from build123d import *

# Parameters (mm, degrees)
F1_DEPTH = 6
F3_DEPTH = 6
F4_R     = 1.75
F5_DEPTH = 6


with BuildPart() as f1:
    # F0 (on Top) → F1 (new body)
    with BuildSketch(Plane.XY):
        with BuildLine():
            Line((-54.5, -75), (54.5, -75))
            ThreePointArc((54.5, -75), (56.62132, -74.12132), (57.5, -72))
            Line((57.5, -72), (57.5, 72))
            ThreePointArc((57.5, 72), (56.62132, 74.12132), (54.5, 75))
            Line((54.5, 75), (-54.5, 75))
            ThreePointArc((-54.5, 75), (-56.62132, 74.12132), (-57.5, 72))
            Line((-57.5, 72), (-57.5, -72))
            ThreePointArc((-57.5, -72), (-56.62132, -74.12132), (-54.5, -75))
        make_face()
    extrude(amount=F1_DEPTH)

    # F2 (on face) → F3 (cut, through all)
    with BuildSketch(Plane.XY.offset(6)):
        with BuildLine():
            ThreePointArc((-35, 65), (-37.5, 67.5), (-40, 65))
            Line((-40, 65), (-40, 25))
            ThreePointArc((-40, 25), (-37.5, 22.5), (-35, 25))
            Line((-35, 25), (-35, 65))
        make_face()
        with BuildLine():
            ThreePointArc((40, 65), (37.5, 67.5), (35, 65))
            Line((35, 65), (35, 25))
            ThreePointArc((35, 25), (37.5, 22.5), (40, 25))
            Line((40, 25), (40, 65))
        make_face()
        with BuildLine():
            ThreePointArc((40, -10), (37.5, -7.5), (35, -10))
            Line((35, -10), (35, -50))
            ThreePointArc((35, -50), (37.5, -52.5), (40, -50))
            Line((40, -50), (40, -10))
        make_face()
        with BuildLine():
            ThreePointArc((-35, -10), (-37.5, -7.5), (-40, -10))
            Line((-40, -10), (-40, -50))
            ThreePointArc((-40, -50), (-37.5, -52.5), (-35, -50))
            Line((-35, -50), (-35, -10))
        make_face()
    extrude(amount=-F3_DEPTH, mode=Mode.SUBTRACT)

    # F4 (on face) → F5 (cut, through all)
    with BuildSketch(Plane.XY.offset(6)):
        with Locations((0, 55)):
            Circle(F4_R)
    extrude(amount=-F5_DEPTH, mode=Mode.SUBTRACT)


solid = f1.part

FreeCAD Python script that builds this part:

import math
import FreeCAD as App
import Part
import Sketcher
from FreeCAD import Vector
Q = App.Units.Quantity

doc = App.newDocument("Part")
body = doc.addObject("PartDesign::Body", "Body")

# Sketch on XY plane
sketch1 = body.newObject("Sketcher::SketchObject", "Sketch")
sketch1.AttachmentSupport = (doc.getObject("XY_Plane"), [""])
sketch1.MapMode = "FlatFace"
sketch1.addGeometry(Part.LineSegment(Vector(-54.5, -75, 0), Vector(54.5, -75, 0)), False)
sketch1.addGeometry(Part.ArcOfCircle(Part.Circle(Vector(54.5, -72, 0), Vector(0, 0, 1), 3), math.radians(-90), math.radians(0)), False)
sketch1.addGeometry(Part.LineSegment(Vector(57.5, -72, 0), Vector(57.5, 72, 0)), False)
sketch1.addGeometry(Part.ArcOfCircle(Part.Circle(Vector(54.5, 72, 0), Vector(0, 0, 1), 3), math.radians(0), math.radians(90)), False)
sketch1.addGeometry(Part.LineSegment(Vector(54.5, 75, 0), Vector(-54.5, 75, 0)), False)
sketch1.addGeometry(Part.ArcOfCircle(Part.Circle(Vector(-54.5, 72, 0), Vector(0, 0, 1), 3), math.radians(90), math.radians(180)), False)
sketch1.addGeometry(Part.LineSegment(Vector(-57.5, 72, 0), Vector(-57.5, -72, 0)), False)
sketch1.addGeometry(Part.ArcOfCircle(Part.Circle(Vector(-54.5, -72, 0), Vector(0, 0, 1), 3), math.radians(-180), math.radians(-90)), False)
sketch1.addConstraint(Sketcher.Constraint("Tangent", 0, 2, 1, 1))
sketch1.addConstraint(Sketcher.Constraint("Tangent", 1, 2, 2, 1))
sketch1.addConstraint(Sketcher.Constraint("Tangent", 2, 2, 3, 1))
sketch1.addConstraint(Sketcher.Constraint("Tangent", 3, 2, 4, 1))
sketch1.addConstraint(Sketcher.Constraint("Tangent", 4, 2, 5, 1))
sketch1.addConstraint(Sketcher.Constraint("Tangent", 5, 2, 6, 1))
sketch1.addConstraint(Sketcher.Constraint("Tangent", 6, 2, 7, 1))
sketch1.addConstraint(Sketcher.Constraint("Tangent", 7, 2, 0, 1))
sketch1.addConstraint(Sketcher.Constraint("Horizontal", 0))
sketch1.addConstraint(Sketcher.Constraint("Vertical", 2))
sketch1.addConstraint(Sketcher.Constraint("Horizontal", 4))
sketch1.addConstraint(Sketcher.Constraint("Vertical", 6))
sketch1.addConstraint(Sketcher.Constraint("Equal", 1, 3))
sketch1.addConstraint(Sketcher.Constraint("Equal", 3, 5))
sketch1.addConstraint(Sketcher.Constraint("Equal", 5, 7))
sketch1.addConstraint(Sketcher.Constraint("Symmetric", 1, 3, 5, 3, -1, 1))
sketch1.addConstraint(Sketcher.Constraint("Radius", 1, Q("3.000001 mm")))
sketch1.addConstraint(Sketcher.Constraint("DistanceX", 0, 1, 0, 2, Q("109 mm")))
sketch1.addConstraint(Sketcher.Constraint("DistanceY", 2, 1, 2, 2, Q("144 mm")))
pad1 = body.newObject("PartDesign::Pad", "Pad")
pad1.Profile = sketch1
pad1.Length = 6

# Sketch on XY plane
sketch2 = body.newObject("Sketcher::SketchObject", "Sketch001")
sketch2.AttachmentSupport = (doc.getObject("XY_Plane"), [""])
sketch2.MapMode = "FlatFace"
sketch2.AttachmentOffset = App.Placement(Vector(0, 0, 6), App.Rotation())
sketch2.addGeometry(Part.ArcOfCircle(Part.Circle(Vector(-37.5, 65, 0), Vector(0, 0, 1), 2.5), math.radians(0), math.radians(180)), False)
sketch2.addGeometry(Part.LineSegment(Vector(-40, 65, 0), Vector(-40, 25, 0)), False)
sketch2.addGeometry(Part.ArcOfCircle(Part.Circle(Vector(-37.5, 25, 0), Vector(0, 0, 1), 2.5), math.radians(180), math.radians(360)), False)
sketch2.addGeometry(Part.LineSegment(Vector(-35, 25, 0), Vector(-35, 65, 0)), False)
sketch2.addGeometry(Part.ArcOfCircle(Part.Circle(Vector(37.5, 65, 0), Vector(0, 0, 1), 2.5), math.radians(0), math.radians(180)), False)
sketch2.addGeometry(Part.LineSegment(Vector(35, 65, 0), Vector(35, 25, 0)), False)
sketch2.addGeometry(Part.ArcOfCircle(Part.Circle(Vector(37.5, 25, 0), Vector(0, 0, 1), 2.5), math.radians(180), math.radians(360)), False)
sketch2.addGeometry(Part.LineSegment(Vector(40, 25, 0), Vector(40, 65, 0)), False)
sketch2.addGeometry(Part.ArcOfCircle(Part.Circle(Vector(37.5, -10, 0), Vector(0, 0, 1), 2.5), math.radians(0), math.radians(180)), False)
sketch2.addGeometry(Part.LineSegment(Vector(35, -10, 0), Vector(35, -50, 0)), False)
sketch2.addGeometry(Part.ArcOfCircle(Part.Circle(Vector(37.5, -50, 0), Vector(0, 0, 1), 2.5), math.radians(180), math.radians(360)), False)
sketch2.addGeometry(Part.LineSegment(Vector(40, -50, 0), Vector(40, -10, 0)), False)
sketch2.addGeometry(Part.ArcOfCircle(Part.Circle(Vector(-37.5, -10, 0), Vector(0, 0, 1), 2.5), math.radians(0), math.radians(180)), False)
sketch2.addGeometry(Part.LineSegment(Vector(-40, -10, 0), Vector(-40, -50, 0)), False)
sketch2.addGeometry(Part.ArcOfCircle(Part.Circle(Vector(-37.5, -50, 0), Vector(0, 0, 1), 2.5), math.radians(180), math.radians(360)), False)
sketch2.addGeometry(Part.LineSegment(Vector(-35, -50, 0), Vector(-35, -10, 0)), False)
sketch2.addConstraint(Sketcher.Constraint("Tangent", 0, 2, 1, 1))
sketch2.addConstraint(Sketcher.Constraint("Tangent", 1, 2, 2, 1))
sketch2.addConstraint(Sketcher.Constraint("Tangent", 2, 2, 3, 1))
sketch2.addConstraint(Sketcher.Constraint("Tangent", 3, 2, 0, 1))
sketch2.addConstraint(Sketcher.Constraint("Tangent", 4, 2, 5, 1))
sketch2.addConstraint(Sketcher.Constraint("Tangent", 5, 2, 6, 1))
sketch2.addConstraint(Sketcher.Constraint("Tangent", 6, 2, 7, 1))
sketch2.addConstraint(Sketcher.Constraint("Tangent", 7, 2, 4, 1))
sketch2.addConstraint(Sketcher.Constraint("Tangent", 8, 2, 9, 1))
sketch2.addConstraint(Sketcher.Constraint("Tangent", 9, 2, 10, 1))
sketch2.addConstraint(Sketcher.Constraint("Tangent", 10, 2, 11, 1))
sketch2.addConstraint(Sketcher.Constraint("Tangent", 11, 2, 8, 1))
sketch2.addConstraint(Sketcher.Constraint("Tangent", 12, 2, 13, 1))
sketch2.addConstraint(Sketcher.Constraint("Tangent", 13, 2, 14, 1))
sketch2.addConstraint(Sketcher.Constraint("Tangent", 14, 2, 15, 1))
sketch2.addConstraint(Sketcher.Constraint("Tangent", 15, 2, 12, 1))
sketch2.addConstraint(Sketcher.Constraint("Vertical", 1))
sketch2.addConstraint(Sketcher.Constraint("Vertical", 3))
sketch2.addConstraint(Sketcher.Constraint("Vertical", 5))
sketch2.addConstraint(Sketcher.Constraint("Vertical", 7))
sketch2.addConstraint(Sketcher.Constraint("Vertical", 9))
sketch2.addConstraint(Sketcher.Constraint("Vertical", 11))
sketch2.addConstraint(Sketcher.Constraint("Vertical", 13))
sketch2.addConstraint(Sketcher.Constraint("Vertical", 15))
sketch2.addConstraint(Sketcher.Constraint("Equal", 2, 4))
sketch2.addConstraint(Sketcher.Constraint("Equal", 6, 8))
sketch2.addConstraint(Sketcher.Constraint("Equal", 10, 12))
sketch2.addConstraint(Sketcher.Constraint("Symmetric", 0, 3, 4, 3, -2))
sketch2.addConstraint(Sketcher.Constraint("Symmetric", 8, 3, 12, 3, -2))
sketch2.addConstraint(Sketcher.Constraint("Horizontal", 2, 3, 6, 3))
sketch2.addConstraint(Sketcher.Constraint("Horizontal", 10, 3, 14, 3))
sketch2.addConstraint(Sketcher.Constraint("Vertical", 6, 3, 8, 3))
sketch2.addConstraint(Sketcher.Constraint("Equal", 7, 9))
sketch2.addConstraint(Sketcher.Constraint("Radius", 0, Q("2.5 mm")))
sketch2.addConstraint(Sketcher.Constraint("DistanceY", 1, 2, 1, 1, Q("40 mm")))
sketch2.addConstraint(Sketcher.Constraint("DistanceY", -1, 1, 0, 3, Q("65 mm")))
sketch2.addConstraint(Sketcher.Constraint("DistanceY", 8, 3, -1, 1, Q("10 mm")))
sketch2.addConstraint(Sketcher.Constraint("DistanceX", 0, 2, -1, 1, Q("40 mm")))
pocket1 = body.newObject("PartDesign::Pocket", "Pocket")
pocket1.Profile = sketch2
pocket1.Type = "ThroughAll"

# Sketch on XY plane
sketch3 = body.newObject("Sketcher::SketchObject", "Sketch002")
sketch3.AttachmentSupport = (doc.getObject("XY_Plane"), [""])
sketch3.MapMode = "FlatFace"
sketch3.AttachmentOffset = App.Placement(Vector(0, 0, 6), App.Rotation())
sketch3.addGeometry(Part.Circle(Vector(0, 55, 0), Vector(0, 0, 1), 1.8), False)
sketch3.addConstraint(Sketcher.Constraint("PointOnObject", 0, 3, -2))
sketch3.addConstraint(Sketcher.Constraint("Diameter", 0, Q("3.5 mm")))
sketch3.addConstraint(Sketcher.Constraint("DistanceY", -1, 1, 0, 3, Q("55 mm")))
pocket2 = body.newObject("PartDesign::Pocket", "Pocket001")
pocket2.Profile = sketch3
pocket2.Type = "ThroughAll"

doc.recompute()
